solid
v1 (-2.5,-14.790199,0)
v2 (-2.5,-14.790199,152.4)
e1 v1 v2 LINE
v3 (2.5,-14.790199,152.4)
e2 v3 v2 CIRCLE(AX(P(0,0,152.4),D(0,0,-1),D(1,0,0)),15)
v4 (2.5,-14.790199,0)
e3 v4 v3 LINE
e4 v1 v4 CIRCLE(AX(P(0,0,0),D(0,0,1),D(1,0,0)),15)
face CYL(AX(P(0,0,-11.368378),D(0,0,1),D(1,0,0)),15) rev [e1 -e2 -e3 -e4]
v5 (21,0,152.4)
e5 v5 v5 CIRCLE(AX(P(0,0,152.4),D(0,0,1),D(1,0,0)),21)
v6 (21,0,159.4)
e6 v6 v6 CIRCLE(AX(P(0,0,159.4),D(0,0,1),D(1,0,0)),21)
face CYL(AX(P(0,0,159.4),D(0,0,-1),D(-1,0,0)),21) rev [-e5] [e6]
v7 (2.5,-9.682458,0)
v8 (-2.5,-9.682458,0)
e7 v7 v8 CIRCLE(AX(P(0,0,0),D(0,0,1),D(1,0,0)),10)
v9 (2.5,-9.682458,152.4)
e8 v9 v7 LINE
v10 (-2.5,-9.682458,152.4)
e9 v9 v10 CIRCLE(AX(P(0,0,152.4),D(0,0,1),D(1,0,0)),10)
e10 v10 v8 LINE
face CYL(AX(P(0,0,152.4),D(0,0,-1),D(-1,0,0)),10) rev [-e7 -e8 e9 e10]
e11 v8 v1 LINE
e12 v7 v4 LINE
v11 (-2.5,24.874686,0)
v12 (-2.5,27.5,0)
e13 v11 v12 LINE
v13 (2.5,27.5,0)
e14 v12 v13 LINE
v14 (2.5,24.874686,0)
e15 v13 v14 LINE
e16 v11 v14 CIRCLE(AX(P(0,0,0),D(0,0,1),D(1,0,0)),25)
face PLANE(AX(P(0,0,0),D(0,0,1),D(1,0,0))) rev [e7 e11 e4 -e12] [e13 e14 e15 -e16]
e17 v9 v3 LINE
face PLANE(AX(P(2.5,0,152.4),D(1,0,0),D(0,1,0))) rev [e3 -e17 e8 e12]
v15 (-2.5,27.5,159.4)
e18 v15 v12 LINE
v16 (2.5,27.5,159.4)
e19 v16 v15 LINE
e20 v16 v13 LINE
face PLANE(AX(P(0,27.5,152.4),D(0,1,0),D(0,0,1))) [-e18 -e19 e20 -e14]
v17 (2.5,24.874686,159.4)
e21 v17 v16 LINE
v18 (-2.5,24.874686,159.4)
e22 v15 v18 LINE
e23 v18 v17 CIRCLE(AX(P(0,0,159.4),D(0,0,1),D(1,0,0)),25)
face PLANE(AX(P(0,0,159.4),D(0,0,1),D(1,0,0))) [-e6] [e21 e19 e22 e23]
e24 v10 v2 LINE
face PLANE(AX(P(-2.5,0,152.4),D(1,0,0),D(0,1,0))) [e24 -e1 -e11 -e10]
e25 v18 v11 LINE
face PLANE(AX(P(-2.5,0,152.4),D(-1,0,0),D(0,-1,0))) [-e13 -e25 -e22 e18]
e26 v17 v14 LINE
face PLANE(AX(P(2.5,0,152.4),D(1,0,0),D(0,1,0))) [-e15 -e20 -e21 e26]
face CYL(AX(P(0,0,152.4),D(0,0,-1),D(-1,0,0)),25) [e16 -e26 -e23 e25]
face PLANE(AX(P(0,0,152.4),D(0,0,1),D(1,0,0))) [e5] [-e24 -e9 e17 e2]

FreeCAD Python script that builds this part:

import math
import FreeCAD as App
import Part
import Sketcher
from FreeCAD import Vector

doc = App.newDocument("Part")
body = doc.addObject("PartDesign::Body", "Body")

# Sketch on XY plane
sketch1 = body.newObject("Sketcher::SketchObject", "Sketch")
sketch1.AttachmentSupport = (doc.getObject("XY_Plane"), [""])
sketch1.MapMode = "FlatFace"
sketch1.addGeometry([
    Part.LineSegment(Vector(-2.5, 27.5, 0), Vector(-2.5, 24.9, 0)),  # 0
    Part.ArcOfCircle(Part.Circle(Vector(0, 0, 0), Vector(0, 0, 1), 25), math.radians(96), math.radians(264)),  # 1
    Part.LineSegment(Vector(-2.5, -24.9, 0), Vector(-2.5, -9.7, 0)),  # 2
    Part.ArcOfCircle(Part.Circle(Vector(0, 0, 0), Vector(0, 0, 1), 10), math.radians(-76), math.radians(256)),  # 3
    Part.LineSegment(Vector(2.5, -9.7, 0), Vector(2.5, -24.9, 0)),  # 4
    Part.ArcOfCircle(Part.Circle(Vector(0, 0, 0), Vector(0, 0, 1), 25), math.radians(-84), math.radians(84)),  # 5
    Part.LineSegment(Vector(2.5, 24.9, 0), Vector(2.5, 27.5, 0)),  # 6
    Part.LineSegment(Vector(2.5, 27.5, 0), Vector(-2.5, 27.5, 0)),  # 7
], False)
sketch1.addConstraint([
    Sketcher.Constraint("Coincident", 0, 2, 1, 1),
    Sketcher.Constraint("Coincident", 1, 2, 2, 1),
    Sketcher.Constraint("Coincident", 2, 2, 3, 2),
    Sketcher.Constraint("Coincident", 3, 1, 4, 1),
    Sketcher.Constraint("Coincident", 4, 2, 5, 1),
    Sketcher.Constraint("Coincident", 5, 2, 6, 1),
    Sketcher.Constraint("Coincident", 6, 2, 7, 1),
    Sketcher.Constraint("Coincident", 7, 2, 0, 1),
    Sketcher.Constraint("Vertical", 0),
    Sketcher.Constraint("Vertical", 2),
    Sketcher.Constraint("Vertical", 4),
    Sketcher.Constraint("Vertical", 6),
    Sketcher.Constraint("Horizontal", 7),
    Sketcher.Constraint("Coincident", 1, 3, -1, 1),
    Sketcher.Constraint("Coincident", 3, 3, -1, 1),
    Sketcher.Constraint("Coincident", 5, 3, -1, 1),
    Sketcher.Constraint("Equal", 1, 5),
    Sketcher.Constraint("Horizontal", 2, 2, 3, 1),
    Sketcher.Constraint("Horizontal", 0, 2, 5, 2),
    Sketcher.Constraint("Vertical", 0, 2, 1, 2),
    Sketcher.Constraint("Radius", 1, 25.0),
    Sketcher.Constraint("Radius", 3, 10.0),
    Sketcher.Constraint("DistanceX", 7, 2, 7, 1, 5.0),
    Sketcher.Constraint("DistanceY", -1, 1, 6, 2, 27.5),
])
pad1 = body.newObject("PartDesign::Pad", "Pad")
pad1.Profile = sketch1
pad1.Length = 152.4

# Sketch on XY plane
sketch2 = body.newObject("Sketcher::SketchObject", "Sketch001")
sketch2.AttachmentSupport = (doc.getObject("XY_Plane"), [""])
sketch2.MapMode = "FlatFace"
sketch2.AttachmentOffset = App.Placement(Vector(0, 0, 152.4), App.Rotation())
sketch2.addGeometry([
    Part.LineSegment(Vector(2.5, 27.5, 0), Vector(-2.5, 27.5, 0)),  # 0
    Part.LineSegment(Vector(-2.5, 27.5, 0), Vector(-2.5, 24.9, 0)),  # 1
    Part.ArcOfCircle(Part.Circle(Vector(0, 0, 0), Vector(0, 0, 1), 25), math.radians(96), math.radians(264)),  # 2
    Part.ArcOfCircle(Part.Circle(Vector(0, 0, 0), Vector(0, 0, 1), 25), math.radians(-96), math.radians(84)),  # 3
    Part.LineSegment(Vector(2.5, 24.9, 0), Vector(2.5, 27.5, 0)),  # 4
    Part.Circle(Vector(0, 0, 0), Vector(0, 0, 1), 21),  # 5
], False)
sketch2.addConstraint([
    Sketcher.Constraint("Coincident", 0, 2, 1, 1),
    Sketcher.Constraint("Coincident", 1, 2, 2, 1),
    Sketcher.Constraint("Tangent", 2, 2, 3, 1),
    Sketcher.Constraint("Coincident", 3, 2, 4, 1),
    Sketcher.Constraint("Coincident", 4, 2, 0, 1),
    Sketcher.Constraint("Horizontal", 0),
    Sketcher.Constraint("Vertical", 1),
    Sketcher.Constraint("Vertical", 4),
    Sketcher.Constraint("Coincident", 2, 3, -1, 1),
    Sketcher.Constraint("Coincident", 5, 3, -1, 1),
    Sketcher.Constraint("Equal", 2, 3),
    Sketcher.Constraint("Horizontal", 1, 2, 3, 2),
    Sketcher.Constraint("Vertical", 1, 2, 2, 2),
    Sketcher.Constraint("Diameter", 5, 42.0),
    Sketcher.Constraint("Radius", 2, 25.0),
    Sketcher.Constraint("DistanceX", 0, 2, 0, 1, 5.0),
    Sketcher.Constraint("DistanceY", -1, 1, 0, 2, 27.5),
])
pad2 = body.newObject("PartDesign::Pad", "Pad001")
pad2.Profile = sketch2
pad2.Length = 7

# Sketch on XY plane
sketch3 = body.newObject("Sketcher::SketchObject", "Sketch002")
sketch3.AttachmentSupport = (doc.getObject("XY_Plane"), [""])
sketch3.MapMode = "FlatFace"
sketch3.addGeometry([
    Part.LineSegment(Vector(-2, -15, 0), Vector(-2, -25, 0)),
    Part.ArcOfCircle(Part.Circle(Vector(0, 0, 0), Vector(0, 0, 1), 25), math.radians(-95.74), math.radians(-84.26)),
    Part.LineSegment(Vector(2, -25, 0), Vector(2, -15, 0)),
    Part.ArcOfCircle(Part.Circle(Vector(0, 0, 0), Vector(0, 0, 1), 15), math.radians(-99.59), math.radians(-80.41)),
], False)
sketch3.addConstraint([
    Sketcher.Constraint("Coincident", 0, 2, 1, 1),
    Sketcher.Constraint("Coincident", 1, 2, 2, 1),
    Sketcher.Constraint("Coincident", 2, 2, 3, 2),
    Sketcher.Constraint("Coincident", 3, 1, 0, 1),
    Sketcher.Constraint("Vertical", 0),
    Sketcher.Constraint("Vertical", 2),
    Sketcher.Constraint("Coincident", 1, 3, -1, 1),
    Sketcher.Constraint("Coincident", 3, 3, -1, 1),
    Sketcher.Constraint("Horizontal", 0, 2, 1, 2),
    Sketcher.Constraint("Radius", 1, 25.0),
    Sketcher.Constraint("Radius", 3, 15.0),
    Sketcher.Constraint("DistanceX", 0, 2, 1, 2, 5.0),
])
pad3 = body.newObject("PartDesign::Pad", "Pad002")
pad3.Profile = sketch3
pad3.Length = 152.4

doc.recompute()
